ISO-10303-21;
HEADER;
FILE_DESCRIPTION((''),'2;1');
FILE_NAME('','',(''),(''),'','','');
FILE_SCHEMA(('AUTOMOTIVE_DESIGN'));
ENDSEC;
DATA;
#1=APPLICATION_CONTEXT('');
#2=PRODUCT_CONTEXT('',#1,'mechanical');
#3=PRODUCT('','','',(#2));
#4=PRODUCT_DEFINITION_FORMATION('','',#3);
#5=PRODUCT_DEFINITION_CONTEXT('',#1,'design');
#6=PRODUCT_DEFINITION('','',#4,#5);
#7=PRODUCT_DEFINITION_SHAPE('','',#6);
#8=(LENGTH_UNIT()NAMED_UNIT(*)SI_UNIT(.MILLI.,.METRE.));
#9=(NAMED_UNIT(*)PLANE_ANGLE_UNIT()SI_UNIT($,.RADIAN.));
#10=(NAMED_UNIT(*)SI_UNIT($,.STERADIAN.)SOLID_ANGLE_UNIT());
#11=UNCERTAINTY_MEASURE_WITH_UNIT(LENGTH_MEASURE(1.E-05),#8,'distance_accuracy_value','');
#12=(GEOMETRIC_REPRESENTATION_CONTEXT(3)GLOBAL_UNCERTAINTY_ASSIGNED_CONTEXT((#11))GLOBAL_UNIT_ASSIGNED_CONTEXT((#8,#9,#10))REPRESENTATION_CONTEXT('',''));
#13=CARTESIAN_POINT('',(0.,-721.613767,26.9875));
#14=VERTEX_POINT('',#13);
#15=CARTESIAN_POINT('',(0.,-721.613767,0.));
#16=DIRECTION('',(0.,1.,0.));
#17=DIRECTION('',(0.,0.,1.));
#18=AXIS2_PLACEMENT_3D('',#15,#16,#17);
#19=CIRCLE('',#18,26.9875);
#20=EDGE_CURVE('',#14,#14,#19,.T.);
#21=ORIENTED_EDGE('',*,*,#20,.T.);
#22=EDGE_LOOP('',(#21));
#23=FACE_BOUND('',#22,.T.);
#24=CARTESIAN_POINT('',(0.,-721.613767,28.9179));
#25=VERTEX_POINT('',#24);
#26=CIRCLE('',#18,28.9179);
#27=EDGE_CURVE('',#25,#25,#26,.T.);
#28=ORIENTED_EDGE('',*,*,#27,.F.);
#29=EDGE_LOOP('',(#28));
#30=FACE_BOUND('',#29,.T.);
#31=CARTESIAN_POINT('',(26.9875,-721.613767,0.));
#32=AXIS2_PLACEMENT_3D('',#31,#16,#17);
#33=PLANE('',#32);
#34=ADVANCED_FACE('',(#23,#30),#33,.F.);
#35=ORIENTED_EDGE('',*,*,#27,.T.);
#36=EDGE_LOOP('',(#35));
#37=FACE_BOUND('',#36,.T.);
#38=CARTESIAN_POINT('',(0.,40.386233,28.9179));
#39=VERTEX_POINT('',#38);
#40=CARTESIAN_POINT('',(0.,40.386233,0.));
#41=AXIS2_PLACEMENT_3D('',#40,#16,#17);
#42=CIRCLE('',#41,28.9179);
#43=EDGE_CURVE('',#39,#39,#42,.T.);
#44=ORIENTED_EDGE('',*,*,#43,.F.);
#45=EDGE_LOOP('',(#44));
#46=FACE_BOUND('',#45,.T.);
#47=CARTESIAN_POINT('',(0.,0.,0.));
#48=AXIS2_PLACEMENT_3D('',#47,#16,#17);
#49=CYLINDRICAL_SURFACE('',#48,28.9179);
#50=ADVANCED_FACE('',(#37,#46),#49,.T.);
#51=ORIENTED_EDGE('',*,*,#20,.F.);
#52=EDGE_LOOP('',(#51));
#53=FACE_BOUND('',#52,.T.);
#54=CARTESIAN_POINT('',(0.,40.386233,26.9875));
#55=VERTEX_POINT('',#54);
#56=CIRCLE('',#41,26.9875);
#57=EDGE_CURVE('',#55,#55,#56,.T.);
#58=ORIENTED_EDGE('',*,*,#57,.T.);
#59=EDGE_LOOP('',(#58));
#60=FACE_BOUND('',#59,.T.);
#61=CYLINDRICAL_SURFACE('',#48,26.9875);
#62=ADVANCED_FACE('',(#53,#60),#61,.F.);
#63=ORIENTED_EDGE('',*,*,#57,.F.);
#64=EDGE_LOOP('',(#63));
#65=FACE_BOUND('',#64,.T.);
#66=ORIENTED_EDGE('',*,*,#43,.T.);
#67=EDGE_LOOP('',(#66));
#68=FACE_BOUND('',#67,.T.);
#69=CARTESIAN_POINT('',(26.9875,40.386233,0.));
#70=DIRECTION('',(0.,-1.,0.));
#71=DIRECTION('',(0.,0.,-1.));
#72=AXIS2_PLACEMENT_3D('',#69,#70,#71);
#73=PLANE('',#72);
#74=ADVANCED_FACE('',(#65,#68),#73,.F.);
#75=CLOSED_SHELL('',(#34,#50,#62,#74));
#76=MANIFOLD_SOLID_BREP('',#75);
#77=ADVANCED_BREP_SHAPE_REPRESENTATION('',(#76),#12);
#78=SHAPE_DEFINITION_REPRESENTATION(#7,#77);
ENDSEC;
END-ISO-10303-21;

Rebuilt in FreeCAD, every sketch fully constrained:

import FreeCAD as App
import Part
import Sketcher
from FreeCAD import Vector
Q = App.Units.Quantity


def add_polygon(sketch, points):
    """Adds a closed chain of lines whose ends are joined by coincident constraints."""
    first, n = sketch.GeometryCount, len(points)
    for a, b in zip(points, points[1:] + points[:1]):
        sketch.addGeometry(Part.LineSegment(App.Vector(*a, 0), App.Vector(*b, 0)), False)
    for i in range(n):
        sketch.addConstraint(Sketcher.Constraint("Coincident", first + i, 2, first + (i + 1) % n, 1))

doc = App.newDocument("Part")
body = doc.addObject("PartDesign::Body", "Body")

sketch1 = body.newObject("Sketcher::SketchObject", "Sketch")
sketch1.AttachmentSupport = (doc.getObject("XY_Plane"), [""])
sketch1.MapMode = "FlatFace"
add_polygon(sketch1, [(26.9875, 40.386233), (26.9875, -721.613767), (28.9179, -721.613767), (28.9179, 40.386233)])
sketch1.addConstraint(Sketcher.Constraint("Vertical", 0))
sketch1.addConstraint(Sketcher.Constraint("Horizontal", 1))
sketch1.addConstraint(Sketcher.Constraint("Vertical", 2))
sketch1.addConstraint(Sketcher.Constraint("Horizontal", 3))
sketch1.addConstraint(Sketcher.Constraint("DistanceY", 0, 2, 0, 1, Q("30 in")))
sketch1.addConstraint(Sketcher.Constraint("DistanceX", 1, 1, 1, 2, Q("0.076 in")))
sketch1.addConstraint(Sketcher.Constraint("DistanceX", -1, 1, 0, 2, Q("1.0625 in")))
sketch1.addConstraint(Sketcher.Constraint("DistanceY", 0, 2, -1, 1, Q("721.613767 mm")))
revolution = body.newObject("PartDesign::Revolution", "Revolution")
revolution.Profile = sketch1
revolution.ReferenceAxis = (sketch1, ["V_Axis"])
revolution.Angle = 360

doc.recompute()
